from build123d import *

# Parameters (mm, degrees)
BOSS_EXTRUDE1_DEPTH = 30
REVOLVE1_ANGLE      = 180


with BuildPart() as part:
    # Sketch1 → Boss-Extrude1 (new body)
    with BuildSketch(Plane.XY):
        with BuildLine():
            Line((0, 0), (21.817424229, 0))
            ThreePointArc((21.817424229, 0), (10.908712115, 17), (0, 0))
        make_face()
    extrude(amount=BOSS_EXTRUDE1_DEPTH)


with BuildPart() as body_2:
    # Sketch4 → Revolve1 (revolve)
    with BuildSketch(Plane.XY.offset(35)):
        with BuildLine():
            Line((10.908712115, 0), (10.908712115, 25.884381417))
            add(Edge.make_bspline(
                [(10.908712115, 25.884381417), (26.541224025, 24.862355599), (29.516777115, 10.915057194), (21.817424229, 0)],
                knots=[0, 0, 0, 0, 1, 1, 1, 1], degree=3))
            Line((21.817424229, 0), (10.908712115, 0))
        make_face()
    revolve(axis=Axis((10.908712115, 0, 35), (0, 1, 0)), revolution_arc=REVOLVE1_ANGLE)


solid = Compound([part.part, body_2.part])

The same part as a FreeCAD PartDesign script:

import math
import FreeCAD as App
import Part
import Sketcher
from FreeCAD import Vector
Q = App.Units.Quantity

doc = App.newDocument("Part")
body = doc.addObject("PartDesign::Body", "Body")

# Sketch on XY plane
sketch1 = body.newObject("Sketcher::SketchObject", "Sketch")
sketch1.AttachmentSupport = (doc.getObject("XY_Plane"), [""])
sketch1.MapMode = "FlatFace"
sketch1.addGeometry([
    Part.LineSegment(Vector(0, 0, 0), Vector(22, 0, 0)),
    Part.ArcOfCircle(Part.Circle(Vector(11, 5, 0), Vector(0, 0, 1), 12), math.radians(-25), math.radians(205)),
], False)
sketch1.addConstraint([
    Sketcher.Constraint("Coincident", 0, 1, 1, 2),
    Sketcher.Constraint("Coincident", 1, 1, 0, 2),
    Sketcher.Constraint("Horizontal", 0),
    Sketcher.Constraint("Coincident", 0, 1, -1, 1),
    Sketcher.Constraint("Radius", 1, Q("12 mm")),
    Sketcher.Constraint("DistanceY", -1, 1, 1, 3, Q("5 mm")),
])
pad1 = body.newObject("PartDesign::Pad", "Pad")
pad1.Profile = sketch1
pad1.Length = 30
body2 = doc.addObject("PartDesign::Body", "Body001")

# Sketch on XY plane
sketch2 = body2.newObject("Sketcher::SketchObject", "Sketch001")
sketch2.AttachmentSupport = (doc.getObject("XY_Plane001"), [""])
sketch2.MapMode = "FlatFace"
sketch2.AttachmentOffset = App.Placement(Vector(0, 0, 35), App.Rotation())
sketch2.addGeometry([
    Part.LineSegment(Vector(10.908712, 25.884381, 0), Vector(10.908712, 0, 0)),
    Part.LineSegment(Vector(10.908712, 0, 0), Vector(21.817424, 0, 0)),
    Part.BSplineCurve([Vector(10.908712, 25.884381, 0), Vector(26.541224, 24.862356, 0), Vector(29.516777, 10.915057, 0), Vector(21.817424, 0, 0)], [4, 4], [0, 1], False, 3, [1, 1, 1, 1], False),
], False)
sketch2.addGeometry(Part.LineSegment(Vector(10.908712, 0, 0), Vector(10.908712, 25.884381, 0)), True)  # axis
sketch2.addConstraint([
    Sketcher.Constraint("Block", 2),
    Sketcher.Constraint("Coincident", 0, 2, 1, 1),
    Sketcher.Constraint("Coincident", 1, 2, 2, 2),
    Sketcher.Constraint("Coincident", 2, 1, 0, 1),
    Sketcher.Constraint("Vertical", 0),
    Sketcher.Constraint("Horizontal", 1),
    Sketcher.Constraint("Vertical", 3),
    Sketcher.Constraint("Coincident", 3, 1, 0, 2),
    Sketcher.Constraint("Equal", 0, 3),
])
revolution = body2.newObject("PartDesign::Revolution", "Revolution")
revolution.Profile = sketch2
revolution.ReferenceAxis = (sketch2, ["Axis0"])
revolution.Angle = 180

doc.recompute()
